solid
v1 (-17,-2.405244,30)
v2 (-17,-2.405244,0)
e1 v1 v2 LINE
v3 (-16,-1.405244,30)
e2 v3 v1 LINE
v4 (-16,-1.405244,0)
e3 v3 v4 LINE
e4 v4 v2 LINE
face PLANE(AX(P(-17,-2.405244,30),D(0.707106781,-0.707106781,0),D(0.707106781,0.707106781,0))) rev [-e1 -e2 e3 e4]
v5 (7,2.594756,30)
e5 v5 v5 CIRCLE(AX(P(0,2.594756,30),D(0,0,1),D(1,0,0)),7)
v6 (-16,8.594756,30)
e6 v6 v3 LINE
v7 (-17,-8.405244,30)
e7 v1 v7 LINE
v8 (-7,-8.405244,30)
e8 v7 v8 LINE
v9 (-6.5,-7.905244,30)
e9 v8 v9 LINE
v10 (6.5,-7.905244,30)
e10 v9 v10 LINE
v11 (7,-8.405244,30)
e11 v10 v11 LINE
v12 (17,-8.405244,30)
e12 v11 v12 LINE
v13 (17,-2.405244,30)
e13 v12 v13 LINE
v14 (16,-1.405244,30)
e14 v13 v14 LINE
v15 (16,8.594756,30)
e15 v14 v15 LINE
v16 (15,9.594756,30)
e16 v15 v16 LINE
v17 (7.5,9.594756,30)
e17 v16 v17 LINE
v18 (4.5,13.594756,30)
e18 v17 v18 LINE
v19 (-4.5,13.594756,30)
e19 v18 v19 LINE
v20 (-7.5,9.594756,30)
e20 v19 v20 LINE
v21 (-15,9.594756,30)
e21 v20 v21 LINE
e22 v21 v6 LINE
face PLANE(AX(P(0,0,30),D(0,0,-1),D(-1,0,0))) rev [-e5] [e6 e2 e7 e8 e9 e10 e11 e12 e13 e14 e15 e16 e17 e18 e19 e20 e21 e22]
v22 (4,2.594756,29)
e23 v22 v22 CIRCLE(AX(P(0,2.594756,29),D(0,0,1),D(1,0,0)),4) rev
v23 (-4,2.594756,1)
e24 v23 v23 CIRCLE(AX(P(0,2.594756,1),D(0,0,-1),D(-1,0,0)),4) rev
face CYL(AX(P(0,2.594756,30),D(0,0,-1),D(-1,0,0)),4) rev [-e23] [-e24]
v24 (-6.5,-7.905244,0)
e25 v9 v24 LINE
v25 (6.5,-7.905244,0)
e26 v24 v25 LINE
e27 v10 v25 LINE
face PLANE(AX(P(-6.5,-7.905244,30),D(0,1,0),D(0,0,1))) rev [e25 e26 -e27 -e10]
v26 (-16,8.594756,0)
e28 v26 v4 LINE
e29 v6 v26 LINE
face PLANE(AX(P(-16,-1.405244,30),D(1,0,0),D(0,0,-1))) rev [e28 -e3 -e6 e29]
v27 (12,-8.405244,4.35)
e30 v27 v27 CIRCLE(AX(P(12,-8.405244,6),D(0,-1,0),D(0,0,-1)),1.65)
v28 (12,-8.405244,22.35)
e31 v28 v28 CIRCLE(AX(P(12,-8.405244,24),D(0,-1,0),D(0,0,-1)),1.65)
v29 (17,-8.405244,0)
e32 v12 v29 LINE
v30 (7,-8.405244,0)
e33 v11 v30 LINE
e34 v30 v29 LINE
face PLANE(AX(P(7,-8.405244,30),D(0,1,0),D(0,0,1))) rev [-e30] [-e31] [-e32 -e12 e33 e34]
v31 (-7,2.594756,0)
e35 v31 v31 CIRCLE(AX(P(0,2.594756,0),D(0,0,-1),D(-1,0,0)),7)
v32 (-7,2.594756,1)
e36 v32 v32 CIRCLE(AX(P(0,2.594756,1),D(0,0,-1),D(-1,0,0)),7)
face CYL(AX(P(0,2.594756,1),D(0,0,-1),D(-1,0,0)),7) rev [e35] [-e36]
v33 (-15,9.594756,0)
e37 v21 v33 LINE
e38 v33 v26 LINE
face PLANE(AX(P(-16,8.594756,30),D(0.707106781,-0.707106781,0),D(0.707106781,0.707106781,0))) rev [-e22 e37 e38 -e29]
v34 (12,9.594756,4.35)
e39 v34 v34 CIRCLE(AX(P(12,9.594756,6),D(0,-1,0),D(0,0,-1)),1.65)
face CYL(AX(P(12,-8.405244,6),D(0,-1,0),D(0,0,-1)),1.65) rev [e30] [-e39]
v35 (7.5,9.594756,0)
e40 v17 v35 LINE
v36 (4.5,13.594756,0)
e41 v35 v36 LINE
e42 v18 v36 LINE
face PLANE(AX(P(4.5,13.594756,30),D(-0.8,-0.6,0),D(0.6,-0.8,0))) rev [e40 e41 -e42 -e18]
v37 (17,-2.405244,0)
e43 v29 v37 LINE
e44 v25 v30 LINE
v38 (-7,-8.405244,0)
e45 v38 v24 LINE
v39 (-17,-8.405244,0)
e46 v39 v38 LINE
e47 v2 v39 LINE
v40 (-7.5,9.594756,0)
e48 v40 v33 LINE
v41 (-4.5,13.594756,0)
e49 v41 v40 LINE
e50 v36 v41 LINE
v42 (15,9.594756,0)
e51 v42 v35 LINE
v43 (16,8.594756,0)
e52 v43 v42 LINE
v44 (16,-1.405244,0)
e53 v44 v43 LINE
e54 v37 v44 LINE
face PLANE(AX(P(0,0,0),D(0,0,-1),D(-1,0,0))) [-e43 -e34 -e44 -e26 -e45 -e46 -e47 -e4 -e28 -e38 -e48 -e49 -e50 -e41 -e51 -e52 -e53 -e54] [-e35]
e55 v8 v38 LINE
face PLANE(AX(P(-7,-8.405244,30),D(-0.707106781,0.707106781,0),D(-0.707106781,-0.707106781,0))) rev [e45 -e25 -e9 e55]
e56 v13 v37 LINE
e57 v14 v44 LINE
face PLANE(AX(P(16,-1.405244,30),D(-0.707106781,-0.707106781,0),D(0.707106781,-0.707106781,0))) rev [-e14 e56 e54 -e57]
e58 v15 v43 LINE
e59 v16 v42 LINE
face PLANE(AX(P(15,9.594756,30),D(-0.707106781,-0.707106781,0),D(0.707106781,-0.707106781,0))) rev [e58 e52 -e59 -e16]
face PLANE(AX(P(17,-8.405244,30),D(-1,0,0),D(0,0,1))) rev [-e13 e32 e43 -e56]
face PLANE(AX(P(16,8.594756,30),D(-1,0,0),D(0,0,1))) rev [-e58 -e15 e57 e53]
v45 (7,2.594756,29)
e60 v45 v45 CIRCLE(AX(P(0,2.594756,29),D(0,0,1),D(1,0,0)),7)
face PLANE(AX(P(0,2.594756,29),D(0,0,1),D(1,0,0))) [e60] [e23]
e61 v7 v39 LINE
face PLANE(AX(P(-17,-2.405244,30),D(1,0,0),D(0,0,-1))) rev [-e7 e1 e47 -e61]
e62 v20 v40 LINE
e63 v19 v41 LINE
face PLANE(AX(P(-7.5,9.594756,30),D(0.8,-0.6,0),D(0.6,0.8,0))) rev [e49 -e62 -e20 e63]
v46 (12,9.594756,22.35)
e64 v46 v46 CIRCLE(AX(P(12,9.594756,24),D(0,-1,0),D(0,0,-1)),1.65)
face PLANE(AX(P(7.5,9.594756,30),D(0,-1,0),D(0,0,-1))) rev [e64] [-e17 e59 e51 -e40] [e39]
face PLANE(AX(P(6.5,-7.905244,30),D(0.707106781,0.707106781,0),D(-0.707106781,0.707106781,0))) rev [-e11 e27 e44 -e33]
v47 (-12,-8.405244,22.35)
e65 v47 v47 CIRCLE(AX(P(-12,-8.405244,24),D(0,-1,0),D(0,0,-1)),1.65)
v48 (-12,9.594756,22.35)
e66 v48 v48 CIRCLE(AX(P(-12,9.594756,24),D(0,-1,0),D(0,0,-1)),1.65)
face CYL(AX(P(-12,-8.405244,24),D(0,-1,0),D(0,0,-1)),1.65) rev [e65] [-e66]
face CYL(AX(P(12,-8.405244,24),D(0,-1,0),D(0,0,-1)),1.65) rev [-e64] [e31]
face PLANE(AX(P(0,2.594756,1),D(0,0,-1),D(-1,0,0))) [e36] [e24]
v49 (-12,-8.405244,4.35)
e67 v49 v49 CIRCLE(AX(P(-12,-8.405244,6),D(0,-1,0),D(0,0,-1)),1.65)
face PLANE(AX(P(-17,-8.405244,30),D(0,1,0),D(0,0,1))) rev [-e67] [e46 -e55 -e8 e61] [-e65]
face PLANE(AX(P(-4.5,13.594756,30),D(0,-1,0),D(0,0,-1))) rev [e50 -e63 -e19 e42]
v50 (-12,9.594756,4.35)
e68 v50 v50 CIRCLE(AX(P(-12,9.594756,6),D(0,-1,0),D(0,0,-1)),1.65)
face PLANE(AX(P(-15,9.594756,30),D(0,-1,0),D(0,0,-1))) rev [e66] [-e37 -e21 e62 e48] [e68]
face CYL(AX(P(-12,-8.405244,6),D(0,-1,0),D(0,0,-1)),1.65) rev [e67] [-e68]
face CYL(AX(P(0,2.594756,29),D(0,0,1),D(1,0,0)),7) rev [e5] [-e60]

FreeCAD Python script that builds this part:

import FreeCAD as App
import Part
import Sketcher


def add_polygon(sketch, points):
    """Adds a closed chain of lines whose ends are joined by coincident constraints."""
    first, n = sketch.GeometryCount, len(points)
    for a, b in zip(points, points[1:] + points[:1]):
        sketch.addGeometry(Part.LineSegment(App.Vector(*a, 0), App.Vector(*b, 0)), False)
    for i in range(n):
        sketch.addConstraint(Sketcher.Constraint("Coincident", first + i, 2, first + (i + 1) % n, 1))

doc = App.newDocument("Part")
params = doc.addObject("Spreadsheet::Sheet", "Params")
for row, (alias, value) in enumerate([
    ("sketch1_width", "10 mm"),
    ("sketch1_width2", "13 mm"),
    ("sketch1_width3", "9 mm"),
    ("sketch1_height", "6 mm"),
    ("sketch1_length", "5 mm"),
    ("pad1_length", "30 mm"),
    ("sketch2_diameter", "8 mm"),
    ("sketch3_diameter", "14 mm"),
    ("pocket2_length", "1 mm"),
    ("sketch4_diameter", "14 mm"),
    ("pocket3_length", "1 mm"),
    ("sketch5_diameter", "3.3 mm"),
    ("hole_diameter", "3.3 mm"),
], start=1):
    params.set(f"A{row}", alias)
    params.set(f"B{row}", "=" + value)
    params.setAlias(f"B{row}", alias)

body = doc.addObject("PartDesign::Body", "Body")

# Sketch on XY plane
sketch1 = doc.addObject("Sketcher::SketchObject", "Sketch")
body.addObject(sketch1)
sketch1.AttachmentSupport = (doc.XY_Plane, [""])
sketch1.MapMode = "FlatFace"
add_polygon(sketch1, [(-17, -2.4), (-17, -8.4), (-7, -8.4), (-6.5, -7.9), (6.5, -7.9), (7, -8.4), (17, -8.4), (17, -2.4), (16, -1.4), (16, 8.6), (15, 9.6), (7.5, 9.6), (4.5, 13.6), (-4.5, 13.6), (-7.5, 9.6), (-15, 9.6), (-16, 8.6), (-16, -1.4)])  # lines 0-17
sketch1.addConstraint(Sketcher.Constraint("Vertical", 0))
sketch1.addConstraint(Sketcher.Constraint("Horizontal", 1))
sketch1.addConstraint(Sketcher.Constraint("Horizontal", 3))
sketch1.addConstraint(Sketcher.Constraint("Horizontal", 5))
sketch1.addConstraint(Sketcher.Constraint("Vertical", 6))
sketch1.addConstraint(Sketcher.Constraint("Vertical", 8))
sketch1.addConstraint(Sketcher.Constraint("Horizontal", 10))
sketch1.addConstraint(Sketcher.Constraint("Horizontal", 12))
sketch1.addConstraint(Sketcher.Constraint("Horizontal", 14))
sketch1.addConstraint(Sketcher.Constraint("Vertical", 16))
sketch1.addConstraint(Sketcher.Constraint("Symmetric", 1, 2, 4, 2, -2))
sketch1.addConstraint(Sketcher.Constraint("Symmetric", 10, 2, 13, 2, -2))
sketch1.addConstraint(Sketcher.Constraint("Symmetric", 8, 2, 15, 2, -2))
sketch1.addConstraint(Sketcher.Constraint("Symmetric", 6, 2, 17, 2, -2))
sketch1.addConstraint(Sketcher.Constraint("Perpendicular", 2, 4))
sketch1.addConstraint(Sketcher.Constraint("Parallel", 4, 7))
sketch1.addConstraint(Sketcher.Constraint("Parallel", 7, 9))
sketch1.addConstraint(Sketcher.Constraint("Perpendicular", 9, 15))
sketch1.addConstraint(Sketcher.Constraint("Parallel", 15, 17))
sketch1.addConstraint(Sketcher.Constraint("Horizontal", 7, 2, 16, 2))
sketch1.addConstraint(Sketcher.Constraint("Equal", 5, 8))
sketch1.addConstraint(Sketcher.Constraint("Equal", 7, 9))
sketch1.addConstraint(Sketcher.Constraint("Equal", 11, 13))
sketch1.addConstraint(Sketcher.Constraint("DistanceX", 1, 1, 1, 2, 10.0))
sketch1.addConstraint(Sketcher.Constraint("DistanceX", 3, 1, 3, 2, 13.0))
sketch1.addConstraint(Sketcher.Constraint("DistanceX", 12, 2, 12, 1, 9.0))
sketch1.addConstraint(Sketcher.Constraint("DistanceY", 0, 2, 0, 1, 6.0))
sketch1.addConstraint(Sketcher.Constraint("Distance", 11, 5.0))
sketch1.addConstraint(Sketcher.Constraint("DistanceX", 10, 2, 10, 1, 7.5))
sketch1.addConstraint(Sketcher.Constraint("DistanceX", 0, 2, -1, 1, 17.0))
sketch1.addConstraint(Sketcher.Constraint("DistanceX", -1, 1, 7, 2, 16.0))
sketch1.addConstraint(Sketcher.Constraint("DistanceY", 0, 2, -1, 1, 8.405244))
sketch1.setExpression("Constraints[41]", "Params.sketch1_width")
sketch1.setExpression("Constraints[42]", "Params.sketch1_width2")
sketch1.setExpression("Constraints[43]", "Params.sketch1_width3")
sketch1.setExpression("Constraints[44]", "Params.sketch1_height")
sketch1.setExpression("Constraints[45]", "Params.sketch1_length")
pad1 = doc.addObject("PartDesign::Pad", "Pad")
body.addObject(pad1)
pad1.Profile = sketch1
pad1.setExpression("Length", "Params.pad1_length")

# Sketch on XY plane
sketch2 = doc.addObject("Sketcher::SketchObject", "Sketch001")
body.addObject(sketch2)
sketch2.AttachmentSupport = (doc.XY_Plane, [""])
sketch2.MapMode = "FlatFace"
sketch2.addGeometry(Part.Circle(App.Vector(0, 2.6, 0), App.Vector(0, 0, 1), 4), False)
sketch2.addConstraint(Sketcher.Constraint("PointOnObject", 0, 3, -2))
sketch2.addConstraint(Sketcher.Constraint("Diameter", 0, 8.0))
sketch2.addConstraint(Sketcher.Constraint("DistanceY", -1, 1, 0, 3, 2.594756))
sketch2.setExpression("Constraints[1]", "Params.sketch2_diameter")
pocket1 = doc.addObject("PartDesign::Pocket", "Pocket")
body.addObject(pocket1)
pocket1.Profile = sketch2
pocket1.Type = "ThroughAll"
pocket1.Reversed = True

# Sketch on XY plane
sketch3 = doc.addObject("Sketcher::SketchObject", "Sketch002")
body.addObject(sketch3)
sketch3.AttachmentSupport = (doc.XY_Plane, [""])
sketch3.MapMode = "FlatFace"
sketch3.addGeometry(Part.Circle(App.Vector(0, 3, 0), App.Vector(0, 0, 1), 7), False)
sketch3.addConstraint(Sketcher.Constraint("PointOnObject", 0, 3, -2))
sketch3.addConstraint(Sketcher.Constraint("Diameter", 0, 14.0))
sketch3.addConstraint(Sketcher.Constraint("DistanceY", -1, 1, 0, 3, 2.594756))
sketch3.setExpression("Constraints[1]", "Params.sketch3_diameter")
pocket2 = doc.addObject("PartDesign::Pocket", "Pocket001")
body.addObject(pocket2)
pocket2.Profile = sketch3
pocket2.setExpression("Length", "Params.pocket2_length")
pocket2.Reversed = True

# Sketch on XY plane
sketch4 = doc.addObject("Sketcher::SketchObject", "Sketch003")
body.addObject(sketch4)
sketch4.AttachmentSupport = (doc.XY_Plane, [""])
sketch4.MapMode = "FlatFace"
sketch4.AttachmentOffset = App.Placement(App.Vector(0, 0, 30), App.Rotation())
sketch4.addGeometry(Part.Circle(App.Vector(0, 3, 0), App.Vector(0, 0, 1), 7), False)
sketch4.addConstraint(Sketcher.Constraint("PointOnObject", 0, 3, -2))
sketch4.addConstraint(Sketcher.Constraint("Diameter", 0, 14.0))
sketch4.addConstraint(Sketcher.Constraint("DistanceY", -1, 1, 0, 3, 2.594756))
sketch4.setExpression("Constraints[1]", "Params.sketch4_diameter")
pocket3 = doc.addObject("PartDesign::Pocket", "Pocket002")
body.addObject(pocket3)
pocket3.Profile = sketch4
pocket3.setExpression("Length", "Params.pocket3_length")

# Sketch on XZ plane
sketch5 = doc.addObject("Sketcher::SketchObject", "Sketch004")
body.addObject(sketch5)
sketch5.AttachmentSupport = (doc.XZ_Plane, [""])
sketch5.MapMode = "FlatFace"
sketch5.AttachmentOffset = App.Placement(App.Vector(0, 0, 8.405244), App.Rotation())
sketch5.addGeometry(Part.Circle(App.Vector(12, 6, 0), App.Vector(0, 0, 1), 1.6), False)
sketch5.addGeometry(Part.Circle(App.Vector(-12, 6, 0), App.Vector(0, 0, 1), 1.6), False)
sketch5.addGeometry(Part.Circle(App.Vector(-12, 24, 0), App.Vector(0, 0, 1), 1.6), False)
sketch5.addGeometry(Part.Circle(App.Vector(12, 24, 0), App.Vector(0, 0, 1), 1.6), False)
sketch5.addConstraint(Sketcher.Constraint("Equal", 0, 1))
sketch5.addConstraint(Sketcher.Constraint("Equal", 1, 2))
sketch5.addConstraint(Sketcher.Constraint("Equal", 2, 3))
sketch5.addConstraint(Sketcher.Constraint("Symmetric", 0, 3, 1, 3, -2))
sketch5.addConstraint(Sketcher.Constraint("Symmetric", 2, 3, 3, 3, -2))
sketch5.addConstraint(Sketcher.Constraint("Vertical", 1, 3, 2, 3))
sketch5.addConstraint(Sketcher.Constraint("Diameter", 0, 3.3))
sketch5.addConstraint(Sketcher.Constraint("DistanceX", -1, 1, 0, 3, 12.0))
sketch5.addConstraint(Sketcher.Constraint("DistanceY", -1, 1, 0, 3, 6.0))
sketch5.addConstraint(Sketcher.Constraint("DistanceY", -1, 1, 2, 3, 24.0))
sketch5.setExpression("Constraints[6]", "Params.sketch5_diameter")
doc.recompute()
hole = doc.addObject("PartDesign::Hole", "Hole")
body.addObject(hole)
hole.Profile = sketch5
hole.ThreadType = "None"
hole.setExpression("Diameter", "Params.hole_diameter")
hole.DepthType = "ThroughAll"

doc.recompute()
